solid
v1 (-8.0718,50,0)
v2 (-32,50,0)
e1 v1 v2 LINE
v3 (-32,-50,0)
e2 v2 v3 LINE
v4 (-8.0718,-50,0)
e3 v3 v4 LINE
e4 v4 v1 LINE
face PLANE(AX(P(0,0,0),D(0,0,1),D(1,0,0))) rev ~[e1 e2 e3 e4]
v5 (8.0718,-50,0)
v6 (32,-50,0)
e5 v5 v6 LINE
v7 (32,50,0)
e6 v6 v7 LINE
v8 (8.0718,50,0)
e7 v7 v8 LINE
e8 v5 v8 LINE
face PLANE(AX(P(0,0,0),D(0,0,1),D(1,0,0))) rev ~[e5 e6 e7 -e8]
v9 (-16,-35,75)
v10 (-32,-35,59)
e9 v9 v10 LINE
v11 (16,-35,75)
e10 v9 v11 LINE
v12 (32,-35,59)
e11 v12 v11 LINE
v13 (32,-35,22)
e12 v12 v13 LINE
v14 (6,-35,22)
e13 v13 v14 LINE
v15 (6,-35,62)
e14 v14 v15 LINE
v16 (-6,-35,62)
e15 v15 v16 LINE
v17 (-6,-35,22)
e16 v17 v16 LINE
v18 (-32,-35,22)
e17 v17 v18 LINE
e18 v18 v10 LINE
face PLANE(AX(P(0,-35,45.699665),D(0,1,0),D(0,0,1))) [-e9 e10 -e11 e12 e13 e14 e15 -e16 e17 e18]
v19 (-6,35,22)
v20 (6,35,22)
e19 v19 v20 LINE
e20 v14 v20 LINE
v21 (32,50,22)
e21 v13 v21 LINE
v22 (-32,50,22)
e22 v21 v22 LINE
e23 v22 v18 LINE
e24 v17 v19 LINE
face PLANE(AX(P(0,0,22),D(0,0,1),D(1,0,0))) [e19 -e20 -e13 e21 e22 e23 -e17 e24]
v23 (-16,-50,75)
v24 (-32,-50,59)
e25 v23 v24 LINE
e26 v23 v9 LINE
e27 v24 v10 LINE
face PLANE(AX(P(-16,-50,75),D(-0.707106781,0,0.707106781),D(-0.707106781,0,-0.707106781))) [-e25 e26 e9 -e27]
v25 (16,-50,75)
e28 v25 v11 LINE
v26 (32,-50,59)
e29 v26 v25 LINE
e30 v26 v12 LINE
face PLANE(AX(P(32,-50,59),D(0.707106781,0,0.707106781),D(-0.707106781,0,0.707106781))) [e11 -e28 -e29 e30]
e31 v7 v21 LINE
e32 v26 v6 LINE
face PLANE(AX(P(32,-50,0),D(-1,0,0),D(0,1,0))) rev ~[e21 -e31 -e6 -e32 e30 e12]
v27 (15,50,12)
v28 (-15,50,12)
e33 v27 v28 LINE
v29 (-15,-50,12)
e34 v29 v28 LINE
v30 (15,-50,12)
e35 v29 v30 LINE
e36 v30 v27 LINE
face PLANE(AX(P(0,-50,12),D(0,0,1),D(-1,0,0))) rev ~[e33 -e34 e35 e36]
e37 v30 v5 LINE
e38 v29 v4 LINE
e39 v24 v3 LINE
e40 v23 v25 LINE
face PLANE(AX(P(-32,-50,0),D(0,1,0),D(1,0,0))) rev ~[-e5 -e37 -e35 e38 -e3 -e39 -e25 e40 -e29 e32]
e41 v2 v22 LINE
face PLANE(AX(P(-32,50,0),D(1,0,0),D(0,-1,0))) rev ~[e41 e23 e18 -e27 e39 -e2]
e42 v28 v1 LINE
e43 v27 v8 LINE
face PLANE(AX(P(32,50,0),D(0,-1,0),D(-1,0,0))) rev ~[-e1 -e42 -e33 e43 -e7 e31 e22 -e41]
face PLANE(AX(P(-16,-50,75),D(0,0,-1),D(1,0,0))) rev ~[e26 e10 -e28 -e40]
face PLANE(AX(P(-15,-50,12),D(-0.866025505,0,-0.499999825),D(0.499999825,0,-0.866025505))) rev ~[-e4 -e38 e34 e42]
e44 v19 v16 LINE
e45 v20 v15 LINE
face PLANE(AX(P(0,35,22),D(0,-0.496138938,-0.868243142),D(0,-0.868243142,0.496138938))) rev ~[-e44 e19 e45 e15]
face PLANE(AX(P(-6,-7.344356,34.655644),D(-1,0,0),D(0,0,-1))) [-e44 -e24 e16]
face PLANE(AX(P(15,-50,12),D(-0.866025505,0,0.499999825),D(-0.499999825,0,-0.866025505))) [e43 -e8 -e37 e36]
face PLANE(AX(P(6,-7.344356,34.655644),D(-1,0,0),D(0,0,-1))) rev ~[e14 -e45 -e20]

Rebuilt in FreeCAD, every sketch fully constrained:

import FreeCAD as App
import Part
import Sketcher
from FreeCAD import Vector
Q = App.Units.Quantity


def add_polygon(sketch, points):
    """Adds a closed chain of lines whose ends are joined by coincident constraints."""
    first, n = sketch.GeometryCount, len(points)
    for a, b in zip(points, points[1:] + points[:1]):
        sketch.addGeometry(Part.LineSegment(App.Vector(*a, 0), App.Vector(*b, 0)), False)
    for i in range(n):
        sketch.addConstraint(Sketcher.Constraint("Coincident", first + i, 2, first + (i + 1) % n, 1))

doc = App.newDocument("Part")
params = doc.addObject("Spreadsheet::Sheet", "Params")
for row, (alias, value) in enumerate([
    ("sketch1_width", "64 mm"),
    ("sketch1_height", "100 mm"),
    ("pad1_length", "22 mm"),
    ("sketch2_width", "32 mm"),
    ("sketch2_width2", "64 mm"),
    ("sketch2_height", "37 mm"),
    ("pad2_length", "15 mm"),
    ("sketch3_width", "70 mm"),
    ("sketch3_height", "40 mm"),
    ("pad3_length", "12 mm"),
    ("sketch4_width", "30 mm"),
    ("pocket1_length", "121.5516 mm"),
], start=1):
    params.set(f"A{row}", alias)
    params.set(f"B{row}", "=" + value)
    params.setAlias(f"B{row}", alias)

body = doc.addObject("PartDesign::Body", "Body")

# Sketch on XY plane
sketch1 = body.newObject("Sketcher::SketchObject", "Sketch")
sketch1.AttachmentSupport = (doc.getObject("XY_Plane"), [""])
sketch1.MapMode = "FlatFace"
add_polygon(sketch1, [(-32, -50), (32, -50), (32, 50), (-32, 50)])  # lines 0-3
sketch1.addConstraint([
    Sketcher.Constraint("Horizontal", 0),
    Sketcher.Constraint("Vertical", 1),
    Sketcher.Constraint("Horizontal", 2),
    Sketcher.Constraint("Vertical", 3),
    Sketcher.Constraint("Symmetric", 0, 2, 2, 2, -1, 1),
    Sketcher.Constraint("DistanceX", 0, 1, 0, 2, Q("64 mm")),
    Sketcher.Constraint("DistanceY", 1, 1, 1, 2, Q("100 mm")),
])
sketch1.setExpression("Constraints[9]", "Params.sketch1_width")
sketch1.setExpression("Constraints[10]", "Params.sketch1_height")
pad1 = body.newObject("PartDesign::Pad", "Pad")
pad1.Profile = sketch1
pad1.setExpression("Length", "Params.pad1_length")

# Sketch on XZ plane
sketch2 = body.newObject("Sketcher::SketchObject", "Sketch001")
sketch2.AttachmentSupport = (doc.getObject("XZ_Plane"), [""])
sketch2.MapMode = "FlatFace"
sketch2.AttachmentOffset = App.Placement(Vector(0, 0, 50), App.Rotation())
add_polygon(sketch2, [(32, 22), (32, 59), (16, 75), (-16, 75), (-32, 59), (-32, 22)])  # lines 0-5
sketch2.addConstraint([
    Sketcher.Constraint("Vertical", 0),
    Sketcher.Constraint("Horizontal", 2),
    Sketcher.Constraint("Vertical", 4),
    Sketcher.Constraint("Horizontal", 5),
    Sketcher.Constraint("Symmetric", 0, 2, 3, 2, -2),
    Sketcher.Constraint("Perpendicular", 1, 3),
    Sketcher.Constraint("Equal", 1, 3),
    Sketcher.Constraint("DistanceX", 2, 2, 2, 1, Q("32 mm")),
    Sketcher.Constraint("DistanceX", 5, 1, 5, 2, Q("64 mm")),
    Sketcher.Constraint("DistanceY", 0, 1, 0, 2, Q("37 mm")),
    Sketcher.Constraint("DistanceY", -1, 1, 0, 2, Q("59 mm")),
])
sketch2.setExpression("Constraints[13]", "Params.sketch2_width")
sketch2.setExpression("Constraints[14]", "Params.sketch2_width2")
sketch2.setExpression("Constraints[15]", "Params.sketch2_height")
pad2 = body.newObject("PartDesign::Pad", "Pad001")
pad2.Profile = sketch2
pad2.setExpression("Length", "Params.pad2_length")
pad2.Reversed = True

# Sketch on YZ plane
sketch3 = body.newObject("Sketcher::SketchObject", "Sketch002")
sketch3.AttachmentSupport = (doc.getObject("YZ_Plane"), [""])
sketch3.MapMode = "FlatFace"
add_polygon(sketch3, [(-35, 62), (-35, 22), (35, 22)])  # lines 0-2
sketch3.addConstraint([
    Sketcher.Constraint("Vertical", 0),
    Sketcher.Constraint("Horizontal", 1),
    Sketcher.Constraint("DistanceX", 1, 1, 1, 2, Q("70 mm")),
    Sketcher.Constraint("DistanceY", 0, 2, 0, 1, Q("40 mm")),
    Sketcher.Constraint("DistanceX", 0, 2, -1, 1, Q("35 mm")),
    Sketcher.Constraint("DistanceY", -1, 1, 0, 2, Q("22 mm")),
])
sketch3.setExpression("Constraints[5]", "Params.sketch3_width")
sketch3.setExpression("Constraints[6]", "Params.sketch3_height")
pad3 = body.newObject("PartDesign::Pad", "Pad002")
pad3.Profile = sketch3
pad3.setExpression("Length", "Params.pad3_length")
pad3.Midplane = True

# Sketch on XZ plane
sketch4 = body.newObject("Sketcher::SketchObject", "Sketch003")
sketch4.AttachmentSupport = (doc.getObject("XZ_Plane"), [""])
sketch4.MapMode = "FlatFace"
sketch4.AttachmentOffset = App.Placement(Vector(0, 0, 50), App.Rotation())
add_polygon(sketch4, [(15, 12), (-15, 12), (-8, 0), (8, 0)])  # lines 0-3
sketch4.addConstraint([
    Sketcher.Constraint("Horizontal", 0),
    Sketcher.Constraint("Horizontal", 2),
    Sketcher.Constraint("Symmetric", 1, 2, 2, 2, -1, 1),
    Sketcher.Constraint("Equal", 1, 3),
    Sketcher.Constraint("DistanceX", 0, 2, 0, 1, Q("30 mm")),
    Sketcher.Constraint("Angle", 1, Q("-60 deg")),
    Sketcher.Constraint("DistanceY", -1, 1, 0, 2, Q("12 mm")),
])
sketch4.setExpression("Constraints[8]", "Params.sketch4_width")
pocket1 = body.newObject("PartDesign::Pocket", "Pocket")
pocket1.Profile = sketch4
pocket1.setExpression("Length", "Params.pocket1_length")

doc.recompute()
